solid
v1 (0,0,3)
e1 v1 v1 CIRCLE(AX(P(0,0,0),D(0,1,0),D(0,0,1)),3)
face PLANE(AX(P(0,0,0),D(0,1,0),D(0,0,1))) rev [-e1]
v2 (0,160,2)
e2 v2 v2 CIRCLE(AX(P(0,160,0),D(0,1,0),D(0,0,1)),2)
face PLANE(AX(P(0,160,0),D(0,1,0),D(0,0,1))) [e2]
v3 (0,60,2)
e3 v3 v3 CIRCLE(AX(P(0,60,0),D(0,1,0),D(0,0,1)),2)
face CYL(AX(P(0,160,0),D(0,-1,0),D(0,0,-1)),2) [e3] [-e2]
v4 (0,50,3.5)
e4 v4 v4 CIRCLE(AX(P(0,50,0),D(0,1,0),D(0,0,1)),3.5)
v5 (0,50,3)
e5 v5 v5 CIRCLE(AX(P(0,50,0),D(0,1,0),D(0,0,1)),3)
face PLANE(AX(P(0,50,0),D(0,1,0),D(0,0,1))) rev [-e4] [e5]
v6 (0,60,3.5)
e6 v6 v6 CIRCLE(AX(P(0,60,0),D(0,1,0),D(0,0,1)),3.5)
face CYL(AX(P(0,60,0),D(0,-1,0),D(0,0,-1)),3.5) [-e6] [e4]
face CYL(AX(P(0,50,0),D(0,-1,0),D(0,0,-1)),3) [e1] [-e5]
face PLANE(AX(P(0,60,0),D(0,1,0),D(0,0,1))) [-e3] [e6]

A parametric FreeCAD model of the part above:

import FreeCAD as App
import Part
import Sketcher

V = App.Vector
Q = App.Units.Quantity

doc = App.newDocument("Part")
body = doc.addObject("PartDesign::Body", "Body")

# Sketch on XZ plane
sketch1 = body.newObject("Sketcher::SketchObject", "Sketch")
sketch1.AttachmentSupport = (doc.getObject("XZ_Plane"), [""])
sketch1.MapMode = "FlatFace"
sketch1.addGeometry(Part.Circle(V(0, 0, 0), V(0, 0, 1), 3), False)
sketch1.addConstraint([
    Sketcher.Constraint("Coincident", 0, 3, -1, 1),
    Sketcher.Constraint("Diameter", 0, Q("6 mm")),
])
pad1 = body.newObject("PartDesign::Pad", "Pad")
pad1.Profile = sketch1
pad1.Length = 50
pad1.Reversed = True

# Sketch on XZ plane
sketch2 = body.newObject("Sketcher::SketchObject", "Sketch001")
sketch2.AttachmentSupport = (doc.getObject("XZ_Plane"), [""])
sketch2.MapMode = "FlatFace"
sketch2.AttachmentOffset = App.Placement(V(0, 0, -50), App.Rotation())
sketch2.addGeometry(Part.Circle(V(0, 0, 0), V(0, 0, 1), 3.5), False)
sketch2.addConstraint([
    Sketcher.Constraint("Coincident", 0, 3, -1, 1),
    Sketcher.Constraint("Diameter", 0, Q("7 mm")),
])
pad2 = body.newObject("PartDesign::Pad", "Pad001")
pad2.Profile = sketch2
pad2.Length = 10
pad2.Reversed = True

# Sketch on XZ plane
sketch3 = body.newObject("Sketcher::SketchObject", "Sketch002")
sketch3.AttachmentSupport = (doc.getObject("XZ_Plane"), [""])
sketch3.MapMode = "FlatFace"
sketch3.AttachmentOffset = App.Placement(V(0, 0, -60), App.Rotation())
sketch3.addGeometry(Part.Circle(V(0, 0, 0), V(0, 0, 1), 2), False)
sketch3.addConstraint([
    Sketcher.Constraint("Coincident", 0, 3, -1, 1),
    Sketcher.Constraint("Diameter", 0, Q("4 mm")),
])
pad3 = body.newObject("PartDesign::Pad", "Pad002")
pad3.Profile = sketch3
pad3.Length = 100
pad3.Reversed = True

doc.recompute()
